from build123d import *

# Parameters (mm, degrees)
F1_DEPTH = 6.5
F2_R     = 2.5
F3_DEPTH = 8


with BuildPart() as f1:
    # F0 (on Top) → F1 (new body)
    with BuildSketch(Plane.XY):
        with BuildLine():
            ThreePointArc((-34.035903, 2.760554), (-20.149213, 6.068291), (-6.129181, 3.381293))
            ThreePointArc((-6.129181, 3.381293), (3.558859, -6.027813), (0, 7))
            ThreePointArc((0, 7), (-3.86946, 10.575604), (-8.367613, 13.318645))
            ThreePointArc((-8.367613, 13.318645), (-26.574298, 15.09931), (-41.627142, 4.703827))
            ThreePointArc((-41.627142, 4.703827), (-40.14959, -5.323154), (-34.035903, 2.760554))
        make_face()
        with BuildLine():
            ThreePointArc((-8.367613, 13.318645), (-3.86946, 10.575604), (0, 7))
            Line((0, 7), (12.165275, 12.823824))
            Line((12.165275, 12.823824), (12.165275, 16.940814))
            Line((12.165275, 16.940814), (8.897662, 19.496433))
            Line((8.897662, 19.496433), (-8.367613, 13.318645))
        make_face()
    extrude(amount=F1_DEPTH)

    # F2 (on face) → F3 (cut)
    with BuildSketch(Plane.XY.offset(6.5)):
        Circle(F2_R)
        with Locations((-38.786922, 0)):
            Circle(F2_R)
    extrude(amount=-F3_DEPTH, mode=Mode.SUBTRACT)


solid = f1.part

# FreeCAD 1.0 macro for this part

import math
import FreeCAD as App
import Part
import Sketcher
from FreeCAD import Vector

doc = App.newDocument("Part")
body = doc.addObject("PartDesign::Body", "Body")

sketch1 = body.newObject("Sketcher::SketchObject", "Sketch")
sketch1.AttachmentSupport = (doc.getObject("XY_Plane"), [""])
sketch1.MapMode = "FlatFace"
sketch1.addGeometry(Part.ArcOfCircle(Part.Circle(Vector(-19.393461, -27.908273, 0), Vector(0, 0, 1), 33.984968), math.radians(67.02693), math.radians(115.52155)), False)
sketch1.addGeometry(Part.ArcOfCircle(Part.Circle(Vector(0, 0, 0), Vector(0, 0, 1), 7), math.radians(151.115739), math.radians(450)), False)
sketch1.addGeometry(Part.LineSegment(Vector(0, 7, 0), Vector(12.165275, 12.823824, 0)), False)
sketch1.addGeometry(Part.LineSegment(Vector(12.165275, 12.823824, 0), Vector(12.165275, 16.940814, 0)), False)
sketch1.addGeometry(Part.LineSegment(Vector(12.165275, 16.940814, 0), Vector(8.897662, 19.496433, 0)), False)
sketch1.addGeometry(Part.LineSegment(Vector(8.897662, 19.496433, 0), Vector(-8.367613, 13.318645, 0)), False)
sketch1.addGeometry(Part.ArcOfCircle(Part.Circle(Vector(-19.902927, -10.657088, 0), Vector(0, 0, 1), 26.606376), math.radians(64.306651), math.radians(144.736357)), False)
sketch1.addGeometry(Part.ArcOfCircle(Part.Circle(Vector(-38.786922, 0, 0), Vector(0, 0, 1), 5.494801), math.radians(121.124022), math.radians(390.158497)), False)
sketch1.addConstraint(Sketcher.Constraint("Coincident", 0, 1, 1, 1))
sketch1.addConstraint(Sketcher.Constraint("Coincident", 1, 2, 2, 1))
sketch1.addConstraint(Sketcher.Constraint("Coincident", 2, 2, 3, 1))
sketch1.addConstraint(Sketcher.Constraint("Coincident", 3, 2, 4, 1))
sketch1.addConstraint(Sketcher.Constraint("Coincident", 4, 2, 5, 1))
sketch1.addConstraint(Sketcher.Constraint("Coincident", 5, 2, 6, 1))
sketch1.addConstraint(Sketcher.Constraint("Coincident", 6, 2, 7, 1))
sketch1.addConstraint(Sketcher.Constraint("Coincident", 7, 2, 0, 2))
sketch1.addConstraint(Sketcher.Constraint("Vertical", 3))
sketch1.addConstraint(Sketcher.Constraint("Coincident", 1, 3, -1, 1))
sketch1.addConstraint(Sketcher.Constraint("PointOnObject", 7, 3, -1))
sketch1.addConstraint(Sketcher.Constraint("PointOnObject", 1, 2, -2))
sketch1.addConstraint(Sketcher.Constraint("Radius", 1, 7.0))
sketch1.addConstraint(Sketcher.Constraint("Radius", 7, 5.494801))
sketch1.addConstraint(Sketcher.Constraint("Radius", 0, 33.984968))
sketch1.addConstraint(Sketcher.Constraint("Radius", 6, 26.606376))
sketch1.addConstraint(Sketcher.Constraint("DistanceY", 3, 1, 3, 2, 4.11699))
sketch1.addConstraint(Sketcher.Constraint("DistanceX", 6, 3, 2, 2, 32.068202))
sketch1.addConstraint(Sketcher.Constraint("DistanceY", 0, 3, 6, 2, 32.6121))
sketch1.addConstraint(Sketcher.Constraint("Distance", 4, 4.148311))
sketch1.addConstraint(Sketcher.Constraint("Distance", 5, 18.337251))
sketch1.addConstraint(Sketcher.Constraint("DistanceX", 0, 3, -1, 1, 19.393461))
sketch1.addConstraint(Sketcher.Constraint("DistanceY", 6, 3, -1, 1, 10.657088))
sketch1.addConstraint(Sketcher.Constraint("DistanceX", 7, 3, -1, 1, 38.786922))
sketch1.addConstraint(Sketcher.Constraint("DistanceX", 0, 1, -1, 1, 6.129181))
sketch1.addConstraint(Sketcher.Constraint("DistanceY", 0, 1, 2, 2, 9.442531))
sketch1.addConstraint(Sketcher.Constraint("DistanceY", 3, 2, 4, 2, 2.555619))
pad1 = body.newObject("PartDesign::Pad", "Pad")
pad1.Profile = sketch1
pad1.Length = 6.5

sketch2 = body.newObject("Sketcher::SketchObject", "Sketch001")
sketch2.AttachmentSupport = (doc.getObject("XY_Plane"), [""])
sketch2.MapMode = "FlatFace"
sketch2.AttachmentOffset = App.Placement(Vector(0, 0, 6.5), App.Rotation())
sketch2.addGeometry(Part.Circle(Vector(0, 0, 0), Vector(0, 0, 1), 2.5), False)
sketch2.addGeometry(Part.Circle(Vector(-38.786922, 0, 0), Vector(0, 0, 1), 2.5), False)
sketch2.addConstraint(Sketcher.Constraint("Coincident", 0, 3, -1, 1))
sketch2.addConstraint(Sketcher.Constraint("Equal", 0, 1))
sketch2.addConstraint(Sketcher.Constraint("PointOnObject", 1, 3, -1))
sketch2.addConstraint(Sketcher.Constraint("Diameter", 0, 5.0))
sketch2.addConstraint(Sketcher.Constraint("DistanceX", 1, 3, -1, 1, 38.786922))
pocket1 = body.newObject("PartDesign::Pocket", "Pocket")
pocket1.Profile = sketch2
pocket1.Length = 8

doc.recompute()
